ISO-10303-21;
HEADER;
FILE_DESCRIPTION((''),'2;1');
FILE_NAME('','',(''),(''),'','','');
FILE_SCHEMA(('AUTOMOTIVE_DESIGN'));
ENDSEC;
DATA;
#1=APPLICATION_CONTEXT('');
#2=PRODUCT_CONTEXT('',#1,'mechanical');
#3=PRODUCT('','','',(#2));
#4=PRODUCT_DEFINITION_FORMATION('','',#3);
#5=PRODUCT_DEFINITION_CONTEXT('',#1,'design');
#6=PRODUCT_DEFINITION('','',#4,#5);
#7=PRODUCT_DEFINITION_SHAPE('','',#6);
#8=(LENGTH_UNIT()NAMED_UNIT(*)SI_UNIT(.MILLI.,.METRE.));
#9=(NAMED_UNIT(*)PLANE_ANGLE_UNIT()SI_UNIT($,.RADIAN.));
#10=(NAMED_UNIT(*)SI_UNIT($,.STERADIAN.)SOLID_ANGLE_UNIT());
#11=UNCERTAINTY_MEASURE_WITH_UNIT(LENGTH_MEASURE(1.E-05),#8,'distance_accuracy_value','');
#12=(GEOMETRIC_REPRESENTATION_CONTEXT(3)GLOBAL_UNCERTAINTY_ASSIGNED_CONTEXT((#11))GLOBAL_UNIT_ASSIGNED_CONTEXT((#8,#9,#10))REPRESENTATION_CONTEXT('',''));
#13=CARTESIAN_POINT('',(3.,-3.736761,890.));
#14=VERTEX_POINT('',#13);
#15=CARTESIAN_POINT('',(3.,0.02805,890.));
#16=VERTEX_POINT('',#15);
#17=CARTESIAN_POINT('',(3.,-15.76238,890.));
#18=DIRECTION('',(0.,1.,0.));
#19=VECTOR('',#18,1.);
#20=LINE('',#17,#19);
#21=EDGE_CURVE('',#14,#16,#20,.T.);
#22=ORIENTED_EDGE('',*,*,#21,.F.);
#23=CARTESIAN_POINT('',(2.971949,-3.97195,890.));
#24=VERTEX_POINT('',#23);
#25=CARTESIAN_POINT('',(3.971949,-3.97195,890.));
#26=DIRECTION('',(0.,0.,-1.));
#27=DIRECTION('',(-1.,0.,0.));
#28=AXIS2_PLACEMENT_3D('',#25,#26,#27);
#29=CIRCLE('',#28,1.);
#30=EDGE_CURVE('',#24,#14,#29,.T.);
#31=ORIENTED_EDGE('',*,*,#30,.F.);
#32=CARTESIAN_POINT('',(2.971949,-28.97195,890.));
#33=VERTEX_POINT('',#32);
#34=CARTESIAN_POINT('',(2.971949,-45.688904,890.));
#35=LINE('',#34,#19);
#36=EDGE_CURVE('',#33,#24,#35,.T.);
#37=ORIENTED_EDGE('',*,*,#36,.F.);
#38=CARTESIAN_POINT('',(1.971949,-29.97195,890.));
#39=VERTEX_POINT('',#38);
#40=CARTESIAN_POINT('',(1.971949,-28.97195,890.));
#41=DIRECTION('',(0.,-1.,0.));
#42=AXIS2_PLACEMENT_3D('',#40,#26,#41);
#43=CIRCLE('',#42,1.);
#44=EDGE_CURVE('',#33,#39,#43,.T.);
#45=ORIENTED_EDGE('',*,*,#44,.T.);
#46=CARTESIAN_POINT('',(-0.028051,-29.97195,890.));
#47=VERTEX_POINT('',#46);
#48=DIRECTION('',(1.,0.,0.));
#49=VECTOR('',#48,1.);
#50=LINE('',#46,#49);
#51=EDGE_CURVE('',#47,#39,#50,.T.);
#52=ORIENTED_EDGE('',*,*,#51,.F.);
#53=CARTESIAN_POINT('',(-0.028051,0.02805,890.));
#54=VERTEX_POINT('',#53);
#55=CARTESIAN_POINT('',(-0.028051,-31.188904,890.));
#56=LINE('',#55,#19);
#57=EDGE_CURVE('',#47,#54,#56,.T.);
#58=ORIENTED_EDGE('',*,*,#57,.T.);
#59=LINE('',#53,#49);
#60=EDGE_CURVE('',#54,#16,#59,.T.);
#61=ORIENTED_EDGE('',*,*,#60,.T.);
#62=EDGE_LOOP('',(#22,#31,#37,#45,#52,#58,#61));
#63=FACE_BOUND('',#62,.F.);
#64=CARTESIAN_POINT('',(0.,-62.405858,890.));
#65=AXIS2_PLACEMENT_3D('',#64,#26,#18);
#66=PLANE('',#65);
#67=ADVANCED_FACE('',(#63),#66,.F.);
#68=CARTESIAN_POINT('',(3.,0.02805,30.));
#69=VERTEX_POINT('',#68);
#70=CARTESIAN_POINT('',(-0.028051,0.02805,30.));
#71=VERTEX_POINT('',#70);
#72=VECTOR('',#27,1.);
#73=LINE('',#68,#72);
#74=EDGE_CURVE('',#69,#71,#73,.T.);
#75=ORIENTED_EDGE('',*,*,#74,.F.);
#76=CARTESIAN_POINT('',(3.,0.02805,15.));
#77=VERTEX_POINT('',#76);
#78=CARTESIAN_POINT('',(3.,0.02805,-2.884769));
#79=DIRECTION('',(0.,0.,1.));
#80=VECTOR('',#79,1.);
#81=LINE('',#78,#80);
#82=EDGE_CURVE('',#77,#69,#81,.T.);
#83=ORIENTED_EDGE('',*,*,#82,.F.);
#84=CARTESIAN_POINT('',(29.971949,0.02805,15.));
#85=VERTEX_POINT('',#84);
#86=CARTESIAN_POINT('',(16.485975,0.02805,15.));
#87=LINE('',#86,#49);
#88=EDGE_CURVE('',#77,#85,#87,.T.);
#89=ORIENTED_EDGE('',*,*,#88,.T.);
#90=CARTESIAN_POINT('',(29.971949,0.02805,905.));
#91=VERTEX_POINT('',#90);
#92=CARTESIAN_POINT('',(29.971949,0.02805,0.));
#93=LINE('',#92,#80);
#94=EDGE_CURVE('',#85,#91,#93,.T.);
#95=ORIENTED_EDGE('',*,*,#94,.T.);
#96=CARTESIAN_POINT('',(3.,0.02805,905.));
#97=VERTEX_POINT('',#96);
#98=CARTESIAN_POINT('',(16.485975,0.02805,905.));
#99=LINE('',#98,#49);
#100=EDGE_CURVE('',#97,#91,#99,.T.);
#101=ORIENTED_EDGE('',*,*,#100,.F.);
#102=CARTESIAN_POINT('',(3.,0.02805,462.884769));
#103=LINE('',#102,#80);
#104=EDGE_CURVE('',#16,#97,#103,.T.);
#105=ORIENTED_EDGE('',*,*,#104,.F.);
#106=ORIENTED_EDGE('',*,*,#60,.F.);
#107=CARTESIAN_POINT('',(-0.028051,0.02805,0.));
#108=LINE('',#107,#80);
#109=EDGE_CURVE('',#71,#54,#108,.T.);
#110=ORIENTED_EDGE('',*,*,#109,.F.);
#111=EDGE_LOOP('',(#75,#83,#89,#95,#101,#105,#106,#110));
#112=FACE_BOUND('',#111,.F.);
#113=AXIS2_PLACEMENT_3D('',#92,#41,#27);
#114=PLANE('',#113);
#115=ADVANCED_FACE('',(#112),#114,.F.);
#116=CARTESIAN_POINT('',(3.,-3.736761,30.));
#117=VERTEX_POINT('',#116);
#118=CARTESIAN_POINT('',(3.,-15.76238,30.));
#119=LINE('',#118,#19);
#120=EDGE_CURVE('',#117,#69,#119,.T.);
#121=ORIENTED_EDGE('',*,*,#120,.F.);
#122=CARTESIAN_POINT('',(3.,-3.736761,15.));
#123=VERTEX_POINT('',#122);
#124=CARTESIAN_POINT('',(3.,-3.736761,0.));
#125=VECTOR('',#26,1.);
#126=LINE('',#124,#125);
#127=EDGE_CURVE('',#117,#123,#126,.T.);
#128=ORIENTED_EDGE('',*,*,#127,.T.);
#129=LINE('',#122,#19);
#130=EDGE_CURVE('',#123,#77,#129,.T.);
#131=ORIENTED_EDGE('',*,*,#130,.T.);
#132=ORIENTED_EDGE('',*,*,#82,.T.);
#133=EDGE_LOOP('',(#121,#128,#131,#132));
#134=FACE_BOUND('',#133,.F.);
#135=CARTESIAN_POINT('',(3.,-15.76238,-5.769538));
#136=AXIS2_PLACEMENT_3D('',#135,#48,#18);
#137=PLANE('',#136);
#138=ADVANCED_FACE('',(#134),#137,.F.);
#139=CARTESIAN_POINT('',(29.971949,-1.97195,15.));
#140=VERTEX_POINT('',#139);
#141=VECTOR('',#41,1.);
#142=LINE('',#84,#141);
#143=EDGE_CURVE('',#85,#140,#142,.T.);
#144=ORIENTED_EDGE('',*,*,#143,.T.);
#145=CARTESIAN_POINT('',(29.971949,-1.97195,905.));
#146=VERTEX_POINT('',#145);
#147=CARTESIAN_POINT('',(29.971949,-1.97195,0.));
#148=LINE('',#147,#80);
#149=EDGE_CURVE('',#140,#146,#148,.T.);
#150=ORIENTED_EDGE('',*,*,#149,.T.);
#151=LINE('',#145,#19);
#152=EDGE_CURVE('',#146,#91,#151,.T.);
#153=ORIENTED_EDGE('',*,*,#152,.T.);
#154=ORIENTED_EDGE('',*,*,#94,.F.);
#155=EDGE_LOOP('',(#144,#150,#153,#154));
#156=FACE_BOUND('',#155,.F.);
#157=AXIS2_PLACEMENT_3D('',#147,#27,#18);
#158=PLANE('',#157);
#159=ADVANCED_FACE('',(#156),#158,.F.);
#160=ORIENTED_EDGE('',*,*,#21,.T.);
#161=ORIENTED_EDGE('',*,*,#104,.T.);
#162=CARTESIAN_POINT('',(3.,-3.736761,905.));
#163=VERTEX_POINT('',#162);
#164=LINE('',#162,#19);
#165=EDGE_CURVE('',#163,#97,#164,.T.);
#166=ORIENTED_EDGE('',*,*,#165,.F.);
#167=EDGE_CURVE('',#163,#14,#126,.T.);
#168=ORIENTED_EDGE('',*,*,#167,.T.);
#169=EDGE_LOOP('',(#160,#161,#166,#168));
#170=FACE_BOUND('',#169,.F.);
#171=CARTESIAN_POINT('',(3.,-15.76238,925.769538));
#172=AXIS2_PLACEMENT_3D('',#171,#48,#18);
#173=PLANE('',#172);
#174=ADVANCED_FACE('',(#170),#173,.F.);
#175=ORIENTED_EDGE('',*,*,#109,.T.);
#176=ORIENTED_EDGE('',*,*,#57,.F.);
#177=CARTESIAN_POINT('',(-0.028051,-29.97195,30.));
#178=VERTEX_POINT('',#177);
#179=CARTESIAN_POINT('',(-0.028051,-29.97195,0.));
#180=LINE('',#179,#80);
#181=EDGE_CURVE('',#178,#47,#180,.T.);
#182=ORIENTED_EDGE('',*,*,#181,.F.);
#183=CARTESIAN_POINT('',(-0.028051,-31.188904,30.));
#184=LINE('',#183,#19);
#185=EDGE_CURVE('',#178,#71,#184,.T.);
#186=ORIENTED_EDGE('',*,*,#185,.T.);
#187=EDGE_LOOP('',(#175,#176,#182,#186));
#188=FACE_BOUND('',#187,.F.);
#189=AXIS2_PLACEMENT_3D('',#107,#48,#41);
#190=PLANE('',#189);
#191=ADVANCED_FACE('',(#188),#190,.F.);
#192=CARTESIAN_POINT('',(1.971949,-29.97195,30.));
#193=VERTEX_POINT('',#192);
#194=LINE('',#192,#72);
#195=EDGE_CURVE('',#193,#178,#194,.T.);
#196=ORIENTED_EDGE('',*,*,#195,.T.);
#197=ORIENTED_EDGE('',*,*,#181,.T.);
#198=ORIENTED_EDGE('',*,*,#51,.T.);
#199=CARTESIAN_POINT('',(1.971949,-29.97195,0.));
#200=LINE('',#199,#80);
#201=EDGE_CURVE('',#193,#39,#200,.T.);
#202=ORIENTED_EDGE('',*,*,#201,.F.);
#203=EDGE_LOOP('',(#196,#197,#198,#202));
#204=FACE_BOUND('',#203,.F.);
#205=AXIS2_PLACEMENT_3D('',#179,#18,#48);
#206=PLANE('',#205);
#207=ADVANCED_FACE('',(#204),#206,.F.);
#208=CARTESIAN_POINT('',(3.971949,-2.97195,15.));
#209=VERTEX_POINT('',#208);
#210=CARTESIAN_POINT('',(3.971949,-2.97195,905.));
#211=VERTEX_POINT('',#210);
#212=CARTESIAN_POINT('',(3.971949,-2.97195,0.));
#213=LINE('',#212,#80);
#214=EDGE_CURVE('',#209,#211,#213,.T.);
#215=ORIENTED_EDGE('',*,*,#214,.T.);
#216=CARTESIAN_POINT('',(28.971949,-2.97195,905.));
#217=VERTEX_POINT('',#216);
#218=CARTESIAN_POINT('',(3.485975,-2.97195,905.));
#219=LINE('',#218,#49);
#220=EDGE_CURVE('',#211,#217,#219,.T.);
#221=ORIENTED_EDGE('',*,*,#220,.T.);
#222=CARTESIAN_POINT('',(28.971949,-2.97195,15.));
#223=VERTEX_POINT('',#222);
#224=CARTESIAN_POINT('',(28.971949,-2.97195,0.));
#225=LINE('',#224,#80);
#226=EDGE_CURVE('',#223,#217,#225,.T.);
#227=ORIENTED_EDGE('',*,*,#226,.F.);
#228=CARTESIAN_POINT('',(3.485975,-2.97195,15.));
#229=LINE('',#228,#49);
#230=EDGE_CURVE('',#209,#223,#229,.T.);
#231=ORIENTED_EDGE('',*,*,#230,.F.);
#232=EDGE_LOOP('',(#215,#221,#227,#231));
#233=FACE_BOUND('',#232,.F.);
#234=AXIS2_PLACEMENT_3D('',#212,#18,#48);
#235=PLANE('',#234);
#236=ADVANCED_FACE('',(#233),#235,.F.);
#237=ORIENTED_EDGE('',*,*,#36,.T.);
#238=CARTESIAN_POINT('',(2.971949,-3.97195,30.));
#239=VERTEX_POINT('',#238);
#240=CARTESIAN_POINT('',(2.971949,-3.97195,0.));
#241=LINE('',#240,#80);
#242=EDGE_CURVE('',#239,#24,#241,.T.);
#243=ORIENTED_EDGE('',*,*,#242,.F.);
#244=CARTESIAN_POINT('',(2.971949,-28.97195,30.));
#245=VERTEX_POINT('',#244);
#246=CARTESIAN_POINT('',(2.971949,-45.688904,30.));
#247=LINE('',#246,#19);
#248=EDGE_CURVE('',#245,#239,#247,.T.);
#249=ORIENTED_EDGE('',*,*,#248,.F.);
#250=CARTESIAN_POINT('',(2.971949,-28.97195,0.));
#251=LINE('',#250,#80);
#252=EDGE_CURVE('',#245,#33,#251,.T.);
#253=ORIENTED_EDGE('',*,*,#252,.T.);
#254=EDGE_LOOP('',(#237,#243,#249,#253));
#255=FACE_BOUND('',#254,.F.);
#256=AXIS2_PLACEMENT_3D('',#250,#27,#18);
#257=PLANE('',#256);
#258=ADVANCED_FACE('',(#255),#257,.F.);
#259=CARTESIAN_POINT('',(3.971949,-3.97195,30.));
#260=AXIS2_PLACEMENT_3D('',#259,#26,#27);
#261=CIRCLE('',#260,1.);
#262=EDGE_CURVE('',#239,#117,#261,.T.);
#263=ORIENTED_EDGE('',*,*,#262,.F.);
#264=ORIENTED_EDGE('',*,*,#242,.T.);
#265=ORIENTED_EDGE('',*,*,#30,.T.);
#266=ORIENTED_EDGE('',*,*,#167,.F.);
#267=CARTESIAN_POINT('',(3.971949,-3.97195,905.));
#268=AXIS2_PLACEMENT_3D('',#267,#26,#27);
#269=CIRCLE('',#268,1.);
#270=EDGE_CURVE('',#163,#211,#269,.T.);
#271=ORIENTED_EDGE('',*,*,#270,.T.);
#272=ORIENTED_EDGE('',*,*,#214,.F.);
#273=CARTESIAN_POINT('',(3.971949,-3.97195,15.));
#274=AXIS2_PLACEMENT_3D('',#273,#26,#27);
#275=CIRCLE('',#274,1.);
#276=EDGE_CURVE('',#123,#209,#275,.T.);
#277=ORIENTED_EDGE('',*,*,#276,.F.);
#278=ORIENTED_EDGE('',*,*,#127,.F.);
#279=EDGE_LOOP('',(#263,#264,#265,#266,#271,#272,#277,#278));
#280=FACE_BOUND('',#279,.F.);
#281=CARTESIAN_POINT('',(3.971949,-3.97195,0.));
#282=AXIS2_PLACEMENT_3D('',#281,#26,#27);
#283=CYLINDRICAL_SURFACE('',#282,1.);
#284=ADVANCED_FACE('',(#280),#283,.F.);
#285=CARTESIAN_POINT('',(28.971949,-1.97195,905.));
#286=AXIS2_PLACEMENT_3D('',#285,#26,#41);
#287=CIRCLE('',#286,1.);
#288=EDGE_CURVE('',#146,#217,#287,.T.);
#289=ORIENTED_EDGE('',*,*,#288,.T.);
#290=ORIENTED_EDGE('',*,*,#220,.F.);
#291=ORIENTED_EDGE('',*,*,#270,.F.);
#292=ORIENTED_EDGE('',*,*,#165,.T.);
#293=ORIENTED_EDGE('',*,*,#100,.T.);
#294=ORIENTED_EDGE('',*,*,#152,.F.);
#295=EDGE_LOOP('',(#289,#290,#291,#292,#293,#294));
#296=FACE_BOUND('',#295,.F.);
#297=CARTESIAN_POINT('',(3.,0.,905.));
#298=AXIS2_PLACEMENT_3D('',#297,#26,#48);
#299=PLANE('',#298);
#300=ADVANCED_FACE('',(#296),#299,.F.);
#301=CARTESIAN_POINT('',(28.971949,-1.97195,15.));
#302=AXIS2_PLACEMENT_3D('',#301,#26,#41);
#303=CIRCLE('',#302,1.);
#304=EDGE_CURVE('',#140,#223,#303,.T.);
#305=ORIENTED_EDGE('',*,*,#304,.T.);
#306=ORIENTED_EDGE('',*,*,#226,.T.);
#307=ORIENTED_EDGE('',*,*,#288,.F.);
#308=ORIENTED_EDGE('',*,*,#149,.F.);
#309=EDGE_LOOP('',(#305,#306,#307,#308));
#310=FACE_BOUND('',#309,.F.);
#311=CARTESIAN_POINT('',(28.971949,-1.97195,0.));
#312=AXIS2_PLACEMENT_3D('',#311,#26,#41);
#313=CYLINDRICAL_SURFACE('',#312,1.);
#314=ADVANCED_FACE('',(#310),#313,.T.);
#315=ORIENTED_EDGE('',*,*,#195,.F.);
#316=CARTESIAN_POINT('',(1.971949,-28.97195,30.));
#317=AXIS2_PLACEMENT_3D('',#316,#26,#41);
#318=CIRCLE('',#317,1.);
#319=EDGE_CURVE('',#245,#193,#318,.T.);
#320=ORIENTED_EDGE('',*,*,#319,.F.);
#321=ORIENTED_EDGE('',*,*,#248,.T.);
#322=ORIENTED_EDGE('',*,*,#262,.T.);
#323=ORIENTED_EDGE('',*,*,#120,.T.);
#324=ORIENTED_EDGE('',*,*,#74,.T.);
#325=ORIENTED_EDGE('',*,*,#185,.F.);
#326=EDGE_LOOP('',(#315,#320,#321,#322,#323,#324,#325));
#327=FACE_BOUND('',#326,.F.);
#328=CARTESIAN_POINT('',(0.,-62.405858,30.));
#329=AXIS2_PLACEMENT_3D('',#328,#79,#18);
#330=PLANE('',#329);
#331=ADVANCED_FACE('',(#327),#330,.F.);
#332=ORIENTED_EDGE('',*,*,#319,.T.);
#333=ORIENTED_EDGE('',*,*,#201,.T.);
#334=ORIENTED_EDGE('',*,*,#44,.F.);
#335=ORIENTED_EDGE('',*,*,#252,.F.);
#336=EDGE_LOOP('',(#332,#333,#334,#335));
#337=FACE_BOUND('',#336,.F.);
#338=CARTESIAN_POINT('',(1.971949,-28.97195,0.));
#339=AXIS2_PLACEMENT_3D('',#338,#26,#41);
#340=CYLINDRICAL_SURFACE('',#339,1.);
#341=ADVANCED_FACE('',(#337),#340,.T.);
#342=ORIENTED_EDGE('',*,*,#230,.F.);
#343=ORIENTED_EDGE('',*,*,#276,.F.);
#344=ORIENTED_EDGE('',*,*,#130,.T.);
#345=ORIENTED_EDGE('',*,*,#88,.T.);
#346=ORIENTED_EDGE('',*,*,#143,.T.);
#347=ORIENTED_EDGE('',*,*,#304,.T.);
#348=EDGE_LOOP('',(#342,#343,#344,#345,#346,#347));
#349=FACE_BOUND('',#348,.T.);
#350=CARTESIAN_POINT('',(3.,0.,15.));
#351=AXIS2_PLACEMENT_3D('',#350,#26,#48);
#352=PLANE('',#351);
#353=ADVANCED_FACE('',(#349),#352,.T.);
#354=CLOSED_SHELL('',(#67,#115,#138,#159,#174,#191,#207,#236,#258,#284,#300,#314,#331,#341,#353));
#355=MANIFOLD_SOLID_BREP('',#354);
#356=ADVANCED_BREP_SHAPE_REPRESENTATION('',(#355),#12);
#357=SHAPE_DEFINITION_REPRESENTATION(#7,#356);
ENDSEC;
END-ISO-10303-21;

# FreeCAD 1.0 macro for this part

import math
import FreeCAD as App
import Part
import Sketcher

doc = App.newDocument("Part")
body = doc.addObject("PartDesign::Body", "Body")

# Sketch on XY plane
sketch1 = body.newObject("Sketcher::SketchObject", "Sketch")
sketch1.AttachmentSupport = (doc.getObject("XY_Plane"), [""])
sketch1.MapMode = "FlatFace"
sketch1.addGeometry([
    Part.LineSegment(App.Vector(30, 0, 0), App.Vector(0, 0, 0)),  # 0
    Part.LineSegment(App.Vector(0, 0, 0), App.Vector(0, -30, 0)),  # 1
    Part.LineSegment(App.Vector(0, -30, 0), App.Vector(2, -30, 0)),  # 2
    Part.ArcOfCircle(Part.Circle(App.Vector(2, -29, 0), App.Vector(0, 0, 1), 1), math.radians(-90), math.radians(0)),  # 3
    Part.LineSegment(App.Vector(3, -29, 0), App.Vector(3, -4, 0)),  # 4
    Part.ArcOfCircle(Part.Circle(App.Vector(4, -4, 0), App.Vector(0, 0, 1), 1), math.radians(90), math.radians(180)),  # 5
    Part.LineSegment(App.Vector(4, -3, 0), App.Vector(29, -3, 0)),  # 6
    Part.ArcOfCircle(Part.Circle(App.Vector(29, -2, 0), App.Vector(0, 0, 1), 1), math.radians(-90), math.radians(0)),  # 7
    Part.LineSegment(App.Vector(30, -2, 0), App.Vector(30, 0, 0)),  # 8
], False)
sketch1.addConstraint([
    Sketcher.Constraint("Coincident", 0, 2, 1, 1),
    Sketcher.Constraint("Coincident", 1, 2, 2, 1),
    Sketcher.Constraint("Tangent", 2, 2, 3, 1),
    Sketcher.Constraint("Tangent", 3, 2, 4, 1),
    Sketcher.Constraint("Tangent", 4, 2, 5, 2),
    Sketcher.Constraint("Tangent", 5, 1, 6, 1),
    Sketcher.Constraint("Tangent", 6, 2, 7, 1),
    Sketcher.Constraint("Tangent", 7, 2, 8, 1),
    Sketcher.Constraint("Coincident", 8, 2, 0, 1),
    Sketcher.Constraint("Horizontal", 0),
    Sketcher.Constraint("Vertical", 1),
    Sketcher.Constraint("Horizontal", 2),
    Sketcher.Constraint("Vertical", 4),
    Sketcher.Constraint("Horizontal", 6),
    Sketcher.Constraint("Vertical", 8),
    Sketcher.Constraint("Equal", 3, 5),
    Sketcher.Constraint("Equal", 5, 7),
    Sketcher.Constraint("Equal", 0, 1),
    Sketcher.Constraint("Equal", 6, 4),
    Sketcher.Constraint("Radius", 3, 1.0),
    Sketcher.Constraint("DistanceX", 0, 2, 0, 1, 30.0),
    Sketcher.Constraint("DistanceX", 2, 1, 2, 2, 2.0),
    Sketcher.Constraint("DistanceX", -1, 1, 3, 3, 1.971949),
    Sketcher.Constraint("DistanceY", 3, 3, -1, 1, 28.97195),
])
pad1 = body.newObject("PartDesign::Pad", "Pad")
pad1.Profile = sketch1
pad1.Length = 920

# Sketch on XZ plane
sketch2 = body.newObject("Sketcher::SketchObject", "Sketch001")
sketch2.AttachmentSupport = (doc.getObject("XZ_Plane"), [""])
sketch2.MapMode = "FlatFace"
sketch2.addGeometry([
    Part.LineSegment(App.Vector(3, 15, 0), App.Vector(3, -11, 0)),  # 0
    Part.LineSegment(App.Vector(3, -11, 0), App.Vector(35, -11, 0)),  # 1
    Part.LineSegment(App.Vector(35, -11, 0), App.Vector(35, 15, 0)),  # 2
    Part.LineSegment(App.Vector(35, 15, 0), App.Vector(3, 15, 0)),  # 3
    Part.LineSegment(App.Vector(3, 931, 0), App.Vector(3, 905, 0)),  # 4
    Part.LineSegment(App.Vector(3, 905, 0), App.Vector(35, 905, 0)),  # 5
    Part.LineSegment(App.Vector(35, 905, 0), App.Vector(35, 931, 0)),  # 6
    Part.LineSegment(App.Vector(35, 931, 0), App.Vector(3, 931, 0)),  # 7
], False)
sketch2.addConstraint([
    Sketcher.Constraint("Coincident", 0, 2, 1, 1),
    Sketcher.Constraint("Coincident", 1, 2, 2, 1),
    Sketcher.Constraint("Coincident", 2, 2, 3, 1),
    Sketcher.Constraint("Coincident", 3, 2, 0, 1),
    Sketcher.Constraint("Coincident", 4, 2, 5, 1),
    Sketcher.Constraint("Coincident", 5, 2, 6, 1),
    Sketcher.Constraint("Coincident", 6, 2, 7, 1),
    Sketcher.Constraint("Coincident", 7, 2, 4, 1),
    Sketcher.Constraint("Vertical", 0),
    Sketcher.Constraint("Horizontal", 1),
    Sketcher.Constraint("Vertical", 2),
    Sketcher.Constraint("Horizontal", 3),
    Sketcher.Constraint("Vertical", 4),
    Sketcher.Constraint("Horizontal", 5),
    Sketcher.Constraint("Vertical", 6),
    Sketcher.Constraint("Horizontal", 7),
    Sketcher.Constraint("Vertical", 3, 2, 4, 2),
    Sketcher.Constraint("Vertical", 2, 2, 5, 2),
    Sketcher.Constraint("Equal", 2, 4),
    Sketcher.Constraint("DistanceX", -1, 1, 0, 2, 3.0),
    Sketcher.Constraint("DistanceY", -1, 1, 2, 2, 15.0),
    Sketcher.Constraint("DistanceY", -1, 1, 4, 2, 905.0),
    Sketcher.Constraint("DistanceX", 1, 1, 1, 2, 32.354593),
    Sketcher.Constraint("DistanceY", 0, 2, 0, 1, 26.291656),
])
pocket1 = body.newObject("PartDesign::Pocket", "Pocket")
pocket1.Profile = sketch2
pocket1.Type = "ThroughAll"
pocket1.Midplane = True

# Sketch on YZ plane
sketch3 = body.newObject("Sketcher::SketchObject", "Sketch002")
sketch3.AttachmentSupport = (doc.getObject("YZ_Plane"), [""])
sketch3.MapMode = "FlatFace"
sketch3.addGeometry([
    Part.LineSegment(App.Vector(-62, 30, 0), App.Vector(-62, -42, 0)),  # 0
    Part.LineSegment(App.Vector(-62, -42, 0), App.Vector(31, -42, 0)),  # 1
    Part.LineSegment(App.Vector(31, -42, 0), App.Vector(31, 30, 0)),  # 2
    Part.LineSegment(App.Vector(31, 30, 0), App.Vector(-62, 30, 0)),  # 3
    Part.LineSegment(App.Vector(-62, 962, 0), App.Vector(-62, 890, 0)),  # 4
    Part.LineSegment(App.Vector(-62, 890, 0), App.Vector(31, 890, 0)),  # 5
    Part.LineSegment(App.Vector(31, 890, 0), App.Vector(31, 962, 0)),  # 6
    Part.LineSegment(App.Vector(31, 962, 0), App.Vector(-62, 962, 0)),  # 7
], False)
sketch3.addConstraint([
    Sketcher.Constraint("Coincident", 0, 2, 1, 1),
    Sketcher.Constraint("Coincident", 1, 2, 2, 1),
    Sketcher.Constraint("Coincident", 2, 2, 3, 1),
    Sketcher.Constraint("Coincident", 3, 2, 0, 1),
    Sketcher.Constraint("Coincident", 4, 2, 5, 1),
    Sketcher.Constraint("Coincident", 5, 2, 6, 1),
    Sketcher.Constraint("Coincident", 6, 2, 7, 1),
    Sketcher.Constraint("Coincident", 7, 2, 4, 1),
    Sketcher.Constraint("Vertical", 0),
    Sketcher.Constraint("Horizontal", 1),
    Sketcher.Constraint("Vertical", 2),
    Sketcher.Constraint("Horizontal", 3),
    Sketcher.Constraint("Vertical", 4),
    Sketcher.Constraint("Horizontal", 5),
    Sketcher.Constraint("Vertical", 6),
    Sketcher.Constraint("Horizontal", 7),
    Sketcher.Constraint("Vertical", 3, 2, 4, 2),
    Sketcher.Constraint("Vertical", 2, 2, 5, 2),
    Sketcher.Constraint("Equal", 2, 4),
    Sketcher.Constraint("DistanceY", -1, 1, 2, 2, 30.0),
    Sketcher.Constraint("DistanceY", -1, 1, 4, 2, 890.0),
    Sketcher.Constraint("DistanceX", 1, 1, 1, 2, 93.286956),
    Sketcher.Constraint("DistanceY", 0, 2, 0, 1, 71.539076),
    Sketcher.Constraint("DistanceX", 0, 2, -1, 1, 62.405858),
])
pocket2 = body.newObject("PartDesign::Pocket", "Pocket001")
pocket2.Profile = sketch3
pocket2.Type = "TwoLengths"
pocket2.Length = 3
pocket2.Length2 = 25
pocket2.Reversed = True

doc.recompute()
